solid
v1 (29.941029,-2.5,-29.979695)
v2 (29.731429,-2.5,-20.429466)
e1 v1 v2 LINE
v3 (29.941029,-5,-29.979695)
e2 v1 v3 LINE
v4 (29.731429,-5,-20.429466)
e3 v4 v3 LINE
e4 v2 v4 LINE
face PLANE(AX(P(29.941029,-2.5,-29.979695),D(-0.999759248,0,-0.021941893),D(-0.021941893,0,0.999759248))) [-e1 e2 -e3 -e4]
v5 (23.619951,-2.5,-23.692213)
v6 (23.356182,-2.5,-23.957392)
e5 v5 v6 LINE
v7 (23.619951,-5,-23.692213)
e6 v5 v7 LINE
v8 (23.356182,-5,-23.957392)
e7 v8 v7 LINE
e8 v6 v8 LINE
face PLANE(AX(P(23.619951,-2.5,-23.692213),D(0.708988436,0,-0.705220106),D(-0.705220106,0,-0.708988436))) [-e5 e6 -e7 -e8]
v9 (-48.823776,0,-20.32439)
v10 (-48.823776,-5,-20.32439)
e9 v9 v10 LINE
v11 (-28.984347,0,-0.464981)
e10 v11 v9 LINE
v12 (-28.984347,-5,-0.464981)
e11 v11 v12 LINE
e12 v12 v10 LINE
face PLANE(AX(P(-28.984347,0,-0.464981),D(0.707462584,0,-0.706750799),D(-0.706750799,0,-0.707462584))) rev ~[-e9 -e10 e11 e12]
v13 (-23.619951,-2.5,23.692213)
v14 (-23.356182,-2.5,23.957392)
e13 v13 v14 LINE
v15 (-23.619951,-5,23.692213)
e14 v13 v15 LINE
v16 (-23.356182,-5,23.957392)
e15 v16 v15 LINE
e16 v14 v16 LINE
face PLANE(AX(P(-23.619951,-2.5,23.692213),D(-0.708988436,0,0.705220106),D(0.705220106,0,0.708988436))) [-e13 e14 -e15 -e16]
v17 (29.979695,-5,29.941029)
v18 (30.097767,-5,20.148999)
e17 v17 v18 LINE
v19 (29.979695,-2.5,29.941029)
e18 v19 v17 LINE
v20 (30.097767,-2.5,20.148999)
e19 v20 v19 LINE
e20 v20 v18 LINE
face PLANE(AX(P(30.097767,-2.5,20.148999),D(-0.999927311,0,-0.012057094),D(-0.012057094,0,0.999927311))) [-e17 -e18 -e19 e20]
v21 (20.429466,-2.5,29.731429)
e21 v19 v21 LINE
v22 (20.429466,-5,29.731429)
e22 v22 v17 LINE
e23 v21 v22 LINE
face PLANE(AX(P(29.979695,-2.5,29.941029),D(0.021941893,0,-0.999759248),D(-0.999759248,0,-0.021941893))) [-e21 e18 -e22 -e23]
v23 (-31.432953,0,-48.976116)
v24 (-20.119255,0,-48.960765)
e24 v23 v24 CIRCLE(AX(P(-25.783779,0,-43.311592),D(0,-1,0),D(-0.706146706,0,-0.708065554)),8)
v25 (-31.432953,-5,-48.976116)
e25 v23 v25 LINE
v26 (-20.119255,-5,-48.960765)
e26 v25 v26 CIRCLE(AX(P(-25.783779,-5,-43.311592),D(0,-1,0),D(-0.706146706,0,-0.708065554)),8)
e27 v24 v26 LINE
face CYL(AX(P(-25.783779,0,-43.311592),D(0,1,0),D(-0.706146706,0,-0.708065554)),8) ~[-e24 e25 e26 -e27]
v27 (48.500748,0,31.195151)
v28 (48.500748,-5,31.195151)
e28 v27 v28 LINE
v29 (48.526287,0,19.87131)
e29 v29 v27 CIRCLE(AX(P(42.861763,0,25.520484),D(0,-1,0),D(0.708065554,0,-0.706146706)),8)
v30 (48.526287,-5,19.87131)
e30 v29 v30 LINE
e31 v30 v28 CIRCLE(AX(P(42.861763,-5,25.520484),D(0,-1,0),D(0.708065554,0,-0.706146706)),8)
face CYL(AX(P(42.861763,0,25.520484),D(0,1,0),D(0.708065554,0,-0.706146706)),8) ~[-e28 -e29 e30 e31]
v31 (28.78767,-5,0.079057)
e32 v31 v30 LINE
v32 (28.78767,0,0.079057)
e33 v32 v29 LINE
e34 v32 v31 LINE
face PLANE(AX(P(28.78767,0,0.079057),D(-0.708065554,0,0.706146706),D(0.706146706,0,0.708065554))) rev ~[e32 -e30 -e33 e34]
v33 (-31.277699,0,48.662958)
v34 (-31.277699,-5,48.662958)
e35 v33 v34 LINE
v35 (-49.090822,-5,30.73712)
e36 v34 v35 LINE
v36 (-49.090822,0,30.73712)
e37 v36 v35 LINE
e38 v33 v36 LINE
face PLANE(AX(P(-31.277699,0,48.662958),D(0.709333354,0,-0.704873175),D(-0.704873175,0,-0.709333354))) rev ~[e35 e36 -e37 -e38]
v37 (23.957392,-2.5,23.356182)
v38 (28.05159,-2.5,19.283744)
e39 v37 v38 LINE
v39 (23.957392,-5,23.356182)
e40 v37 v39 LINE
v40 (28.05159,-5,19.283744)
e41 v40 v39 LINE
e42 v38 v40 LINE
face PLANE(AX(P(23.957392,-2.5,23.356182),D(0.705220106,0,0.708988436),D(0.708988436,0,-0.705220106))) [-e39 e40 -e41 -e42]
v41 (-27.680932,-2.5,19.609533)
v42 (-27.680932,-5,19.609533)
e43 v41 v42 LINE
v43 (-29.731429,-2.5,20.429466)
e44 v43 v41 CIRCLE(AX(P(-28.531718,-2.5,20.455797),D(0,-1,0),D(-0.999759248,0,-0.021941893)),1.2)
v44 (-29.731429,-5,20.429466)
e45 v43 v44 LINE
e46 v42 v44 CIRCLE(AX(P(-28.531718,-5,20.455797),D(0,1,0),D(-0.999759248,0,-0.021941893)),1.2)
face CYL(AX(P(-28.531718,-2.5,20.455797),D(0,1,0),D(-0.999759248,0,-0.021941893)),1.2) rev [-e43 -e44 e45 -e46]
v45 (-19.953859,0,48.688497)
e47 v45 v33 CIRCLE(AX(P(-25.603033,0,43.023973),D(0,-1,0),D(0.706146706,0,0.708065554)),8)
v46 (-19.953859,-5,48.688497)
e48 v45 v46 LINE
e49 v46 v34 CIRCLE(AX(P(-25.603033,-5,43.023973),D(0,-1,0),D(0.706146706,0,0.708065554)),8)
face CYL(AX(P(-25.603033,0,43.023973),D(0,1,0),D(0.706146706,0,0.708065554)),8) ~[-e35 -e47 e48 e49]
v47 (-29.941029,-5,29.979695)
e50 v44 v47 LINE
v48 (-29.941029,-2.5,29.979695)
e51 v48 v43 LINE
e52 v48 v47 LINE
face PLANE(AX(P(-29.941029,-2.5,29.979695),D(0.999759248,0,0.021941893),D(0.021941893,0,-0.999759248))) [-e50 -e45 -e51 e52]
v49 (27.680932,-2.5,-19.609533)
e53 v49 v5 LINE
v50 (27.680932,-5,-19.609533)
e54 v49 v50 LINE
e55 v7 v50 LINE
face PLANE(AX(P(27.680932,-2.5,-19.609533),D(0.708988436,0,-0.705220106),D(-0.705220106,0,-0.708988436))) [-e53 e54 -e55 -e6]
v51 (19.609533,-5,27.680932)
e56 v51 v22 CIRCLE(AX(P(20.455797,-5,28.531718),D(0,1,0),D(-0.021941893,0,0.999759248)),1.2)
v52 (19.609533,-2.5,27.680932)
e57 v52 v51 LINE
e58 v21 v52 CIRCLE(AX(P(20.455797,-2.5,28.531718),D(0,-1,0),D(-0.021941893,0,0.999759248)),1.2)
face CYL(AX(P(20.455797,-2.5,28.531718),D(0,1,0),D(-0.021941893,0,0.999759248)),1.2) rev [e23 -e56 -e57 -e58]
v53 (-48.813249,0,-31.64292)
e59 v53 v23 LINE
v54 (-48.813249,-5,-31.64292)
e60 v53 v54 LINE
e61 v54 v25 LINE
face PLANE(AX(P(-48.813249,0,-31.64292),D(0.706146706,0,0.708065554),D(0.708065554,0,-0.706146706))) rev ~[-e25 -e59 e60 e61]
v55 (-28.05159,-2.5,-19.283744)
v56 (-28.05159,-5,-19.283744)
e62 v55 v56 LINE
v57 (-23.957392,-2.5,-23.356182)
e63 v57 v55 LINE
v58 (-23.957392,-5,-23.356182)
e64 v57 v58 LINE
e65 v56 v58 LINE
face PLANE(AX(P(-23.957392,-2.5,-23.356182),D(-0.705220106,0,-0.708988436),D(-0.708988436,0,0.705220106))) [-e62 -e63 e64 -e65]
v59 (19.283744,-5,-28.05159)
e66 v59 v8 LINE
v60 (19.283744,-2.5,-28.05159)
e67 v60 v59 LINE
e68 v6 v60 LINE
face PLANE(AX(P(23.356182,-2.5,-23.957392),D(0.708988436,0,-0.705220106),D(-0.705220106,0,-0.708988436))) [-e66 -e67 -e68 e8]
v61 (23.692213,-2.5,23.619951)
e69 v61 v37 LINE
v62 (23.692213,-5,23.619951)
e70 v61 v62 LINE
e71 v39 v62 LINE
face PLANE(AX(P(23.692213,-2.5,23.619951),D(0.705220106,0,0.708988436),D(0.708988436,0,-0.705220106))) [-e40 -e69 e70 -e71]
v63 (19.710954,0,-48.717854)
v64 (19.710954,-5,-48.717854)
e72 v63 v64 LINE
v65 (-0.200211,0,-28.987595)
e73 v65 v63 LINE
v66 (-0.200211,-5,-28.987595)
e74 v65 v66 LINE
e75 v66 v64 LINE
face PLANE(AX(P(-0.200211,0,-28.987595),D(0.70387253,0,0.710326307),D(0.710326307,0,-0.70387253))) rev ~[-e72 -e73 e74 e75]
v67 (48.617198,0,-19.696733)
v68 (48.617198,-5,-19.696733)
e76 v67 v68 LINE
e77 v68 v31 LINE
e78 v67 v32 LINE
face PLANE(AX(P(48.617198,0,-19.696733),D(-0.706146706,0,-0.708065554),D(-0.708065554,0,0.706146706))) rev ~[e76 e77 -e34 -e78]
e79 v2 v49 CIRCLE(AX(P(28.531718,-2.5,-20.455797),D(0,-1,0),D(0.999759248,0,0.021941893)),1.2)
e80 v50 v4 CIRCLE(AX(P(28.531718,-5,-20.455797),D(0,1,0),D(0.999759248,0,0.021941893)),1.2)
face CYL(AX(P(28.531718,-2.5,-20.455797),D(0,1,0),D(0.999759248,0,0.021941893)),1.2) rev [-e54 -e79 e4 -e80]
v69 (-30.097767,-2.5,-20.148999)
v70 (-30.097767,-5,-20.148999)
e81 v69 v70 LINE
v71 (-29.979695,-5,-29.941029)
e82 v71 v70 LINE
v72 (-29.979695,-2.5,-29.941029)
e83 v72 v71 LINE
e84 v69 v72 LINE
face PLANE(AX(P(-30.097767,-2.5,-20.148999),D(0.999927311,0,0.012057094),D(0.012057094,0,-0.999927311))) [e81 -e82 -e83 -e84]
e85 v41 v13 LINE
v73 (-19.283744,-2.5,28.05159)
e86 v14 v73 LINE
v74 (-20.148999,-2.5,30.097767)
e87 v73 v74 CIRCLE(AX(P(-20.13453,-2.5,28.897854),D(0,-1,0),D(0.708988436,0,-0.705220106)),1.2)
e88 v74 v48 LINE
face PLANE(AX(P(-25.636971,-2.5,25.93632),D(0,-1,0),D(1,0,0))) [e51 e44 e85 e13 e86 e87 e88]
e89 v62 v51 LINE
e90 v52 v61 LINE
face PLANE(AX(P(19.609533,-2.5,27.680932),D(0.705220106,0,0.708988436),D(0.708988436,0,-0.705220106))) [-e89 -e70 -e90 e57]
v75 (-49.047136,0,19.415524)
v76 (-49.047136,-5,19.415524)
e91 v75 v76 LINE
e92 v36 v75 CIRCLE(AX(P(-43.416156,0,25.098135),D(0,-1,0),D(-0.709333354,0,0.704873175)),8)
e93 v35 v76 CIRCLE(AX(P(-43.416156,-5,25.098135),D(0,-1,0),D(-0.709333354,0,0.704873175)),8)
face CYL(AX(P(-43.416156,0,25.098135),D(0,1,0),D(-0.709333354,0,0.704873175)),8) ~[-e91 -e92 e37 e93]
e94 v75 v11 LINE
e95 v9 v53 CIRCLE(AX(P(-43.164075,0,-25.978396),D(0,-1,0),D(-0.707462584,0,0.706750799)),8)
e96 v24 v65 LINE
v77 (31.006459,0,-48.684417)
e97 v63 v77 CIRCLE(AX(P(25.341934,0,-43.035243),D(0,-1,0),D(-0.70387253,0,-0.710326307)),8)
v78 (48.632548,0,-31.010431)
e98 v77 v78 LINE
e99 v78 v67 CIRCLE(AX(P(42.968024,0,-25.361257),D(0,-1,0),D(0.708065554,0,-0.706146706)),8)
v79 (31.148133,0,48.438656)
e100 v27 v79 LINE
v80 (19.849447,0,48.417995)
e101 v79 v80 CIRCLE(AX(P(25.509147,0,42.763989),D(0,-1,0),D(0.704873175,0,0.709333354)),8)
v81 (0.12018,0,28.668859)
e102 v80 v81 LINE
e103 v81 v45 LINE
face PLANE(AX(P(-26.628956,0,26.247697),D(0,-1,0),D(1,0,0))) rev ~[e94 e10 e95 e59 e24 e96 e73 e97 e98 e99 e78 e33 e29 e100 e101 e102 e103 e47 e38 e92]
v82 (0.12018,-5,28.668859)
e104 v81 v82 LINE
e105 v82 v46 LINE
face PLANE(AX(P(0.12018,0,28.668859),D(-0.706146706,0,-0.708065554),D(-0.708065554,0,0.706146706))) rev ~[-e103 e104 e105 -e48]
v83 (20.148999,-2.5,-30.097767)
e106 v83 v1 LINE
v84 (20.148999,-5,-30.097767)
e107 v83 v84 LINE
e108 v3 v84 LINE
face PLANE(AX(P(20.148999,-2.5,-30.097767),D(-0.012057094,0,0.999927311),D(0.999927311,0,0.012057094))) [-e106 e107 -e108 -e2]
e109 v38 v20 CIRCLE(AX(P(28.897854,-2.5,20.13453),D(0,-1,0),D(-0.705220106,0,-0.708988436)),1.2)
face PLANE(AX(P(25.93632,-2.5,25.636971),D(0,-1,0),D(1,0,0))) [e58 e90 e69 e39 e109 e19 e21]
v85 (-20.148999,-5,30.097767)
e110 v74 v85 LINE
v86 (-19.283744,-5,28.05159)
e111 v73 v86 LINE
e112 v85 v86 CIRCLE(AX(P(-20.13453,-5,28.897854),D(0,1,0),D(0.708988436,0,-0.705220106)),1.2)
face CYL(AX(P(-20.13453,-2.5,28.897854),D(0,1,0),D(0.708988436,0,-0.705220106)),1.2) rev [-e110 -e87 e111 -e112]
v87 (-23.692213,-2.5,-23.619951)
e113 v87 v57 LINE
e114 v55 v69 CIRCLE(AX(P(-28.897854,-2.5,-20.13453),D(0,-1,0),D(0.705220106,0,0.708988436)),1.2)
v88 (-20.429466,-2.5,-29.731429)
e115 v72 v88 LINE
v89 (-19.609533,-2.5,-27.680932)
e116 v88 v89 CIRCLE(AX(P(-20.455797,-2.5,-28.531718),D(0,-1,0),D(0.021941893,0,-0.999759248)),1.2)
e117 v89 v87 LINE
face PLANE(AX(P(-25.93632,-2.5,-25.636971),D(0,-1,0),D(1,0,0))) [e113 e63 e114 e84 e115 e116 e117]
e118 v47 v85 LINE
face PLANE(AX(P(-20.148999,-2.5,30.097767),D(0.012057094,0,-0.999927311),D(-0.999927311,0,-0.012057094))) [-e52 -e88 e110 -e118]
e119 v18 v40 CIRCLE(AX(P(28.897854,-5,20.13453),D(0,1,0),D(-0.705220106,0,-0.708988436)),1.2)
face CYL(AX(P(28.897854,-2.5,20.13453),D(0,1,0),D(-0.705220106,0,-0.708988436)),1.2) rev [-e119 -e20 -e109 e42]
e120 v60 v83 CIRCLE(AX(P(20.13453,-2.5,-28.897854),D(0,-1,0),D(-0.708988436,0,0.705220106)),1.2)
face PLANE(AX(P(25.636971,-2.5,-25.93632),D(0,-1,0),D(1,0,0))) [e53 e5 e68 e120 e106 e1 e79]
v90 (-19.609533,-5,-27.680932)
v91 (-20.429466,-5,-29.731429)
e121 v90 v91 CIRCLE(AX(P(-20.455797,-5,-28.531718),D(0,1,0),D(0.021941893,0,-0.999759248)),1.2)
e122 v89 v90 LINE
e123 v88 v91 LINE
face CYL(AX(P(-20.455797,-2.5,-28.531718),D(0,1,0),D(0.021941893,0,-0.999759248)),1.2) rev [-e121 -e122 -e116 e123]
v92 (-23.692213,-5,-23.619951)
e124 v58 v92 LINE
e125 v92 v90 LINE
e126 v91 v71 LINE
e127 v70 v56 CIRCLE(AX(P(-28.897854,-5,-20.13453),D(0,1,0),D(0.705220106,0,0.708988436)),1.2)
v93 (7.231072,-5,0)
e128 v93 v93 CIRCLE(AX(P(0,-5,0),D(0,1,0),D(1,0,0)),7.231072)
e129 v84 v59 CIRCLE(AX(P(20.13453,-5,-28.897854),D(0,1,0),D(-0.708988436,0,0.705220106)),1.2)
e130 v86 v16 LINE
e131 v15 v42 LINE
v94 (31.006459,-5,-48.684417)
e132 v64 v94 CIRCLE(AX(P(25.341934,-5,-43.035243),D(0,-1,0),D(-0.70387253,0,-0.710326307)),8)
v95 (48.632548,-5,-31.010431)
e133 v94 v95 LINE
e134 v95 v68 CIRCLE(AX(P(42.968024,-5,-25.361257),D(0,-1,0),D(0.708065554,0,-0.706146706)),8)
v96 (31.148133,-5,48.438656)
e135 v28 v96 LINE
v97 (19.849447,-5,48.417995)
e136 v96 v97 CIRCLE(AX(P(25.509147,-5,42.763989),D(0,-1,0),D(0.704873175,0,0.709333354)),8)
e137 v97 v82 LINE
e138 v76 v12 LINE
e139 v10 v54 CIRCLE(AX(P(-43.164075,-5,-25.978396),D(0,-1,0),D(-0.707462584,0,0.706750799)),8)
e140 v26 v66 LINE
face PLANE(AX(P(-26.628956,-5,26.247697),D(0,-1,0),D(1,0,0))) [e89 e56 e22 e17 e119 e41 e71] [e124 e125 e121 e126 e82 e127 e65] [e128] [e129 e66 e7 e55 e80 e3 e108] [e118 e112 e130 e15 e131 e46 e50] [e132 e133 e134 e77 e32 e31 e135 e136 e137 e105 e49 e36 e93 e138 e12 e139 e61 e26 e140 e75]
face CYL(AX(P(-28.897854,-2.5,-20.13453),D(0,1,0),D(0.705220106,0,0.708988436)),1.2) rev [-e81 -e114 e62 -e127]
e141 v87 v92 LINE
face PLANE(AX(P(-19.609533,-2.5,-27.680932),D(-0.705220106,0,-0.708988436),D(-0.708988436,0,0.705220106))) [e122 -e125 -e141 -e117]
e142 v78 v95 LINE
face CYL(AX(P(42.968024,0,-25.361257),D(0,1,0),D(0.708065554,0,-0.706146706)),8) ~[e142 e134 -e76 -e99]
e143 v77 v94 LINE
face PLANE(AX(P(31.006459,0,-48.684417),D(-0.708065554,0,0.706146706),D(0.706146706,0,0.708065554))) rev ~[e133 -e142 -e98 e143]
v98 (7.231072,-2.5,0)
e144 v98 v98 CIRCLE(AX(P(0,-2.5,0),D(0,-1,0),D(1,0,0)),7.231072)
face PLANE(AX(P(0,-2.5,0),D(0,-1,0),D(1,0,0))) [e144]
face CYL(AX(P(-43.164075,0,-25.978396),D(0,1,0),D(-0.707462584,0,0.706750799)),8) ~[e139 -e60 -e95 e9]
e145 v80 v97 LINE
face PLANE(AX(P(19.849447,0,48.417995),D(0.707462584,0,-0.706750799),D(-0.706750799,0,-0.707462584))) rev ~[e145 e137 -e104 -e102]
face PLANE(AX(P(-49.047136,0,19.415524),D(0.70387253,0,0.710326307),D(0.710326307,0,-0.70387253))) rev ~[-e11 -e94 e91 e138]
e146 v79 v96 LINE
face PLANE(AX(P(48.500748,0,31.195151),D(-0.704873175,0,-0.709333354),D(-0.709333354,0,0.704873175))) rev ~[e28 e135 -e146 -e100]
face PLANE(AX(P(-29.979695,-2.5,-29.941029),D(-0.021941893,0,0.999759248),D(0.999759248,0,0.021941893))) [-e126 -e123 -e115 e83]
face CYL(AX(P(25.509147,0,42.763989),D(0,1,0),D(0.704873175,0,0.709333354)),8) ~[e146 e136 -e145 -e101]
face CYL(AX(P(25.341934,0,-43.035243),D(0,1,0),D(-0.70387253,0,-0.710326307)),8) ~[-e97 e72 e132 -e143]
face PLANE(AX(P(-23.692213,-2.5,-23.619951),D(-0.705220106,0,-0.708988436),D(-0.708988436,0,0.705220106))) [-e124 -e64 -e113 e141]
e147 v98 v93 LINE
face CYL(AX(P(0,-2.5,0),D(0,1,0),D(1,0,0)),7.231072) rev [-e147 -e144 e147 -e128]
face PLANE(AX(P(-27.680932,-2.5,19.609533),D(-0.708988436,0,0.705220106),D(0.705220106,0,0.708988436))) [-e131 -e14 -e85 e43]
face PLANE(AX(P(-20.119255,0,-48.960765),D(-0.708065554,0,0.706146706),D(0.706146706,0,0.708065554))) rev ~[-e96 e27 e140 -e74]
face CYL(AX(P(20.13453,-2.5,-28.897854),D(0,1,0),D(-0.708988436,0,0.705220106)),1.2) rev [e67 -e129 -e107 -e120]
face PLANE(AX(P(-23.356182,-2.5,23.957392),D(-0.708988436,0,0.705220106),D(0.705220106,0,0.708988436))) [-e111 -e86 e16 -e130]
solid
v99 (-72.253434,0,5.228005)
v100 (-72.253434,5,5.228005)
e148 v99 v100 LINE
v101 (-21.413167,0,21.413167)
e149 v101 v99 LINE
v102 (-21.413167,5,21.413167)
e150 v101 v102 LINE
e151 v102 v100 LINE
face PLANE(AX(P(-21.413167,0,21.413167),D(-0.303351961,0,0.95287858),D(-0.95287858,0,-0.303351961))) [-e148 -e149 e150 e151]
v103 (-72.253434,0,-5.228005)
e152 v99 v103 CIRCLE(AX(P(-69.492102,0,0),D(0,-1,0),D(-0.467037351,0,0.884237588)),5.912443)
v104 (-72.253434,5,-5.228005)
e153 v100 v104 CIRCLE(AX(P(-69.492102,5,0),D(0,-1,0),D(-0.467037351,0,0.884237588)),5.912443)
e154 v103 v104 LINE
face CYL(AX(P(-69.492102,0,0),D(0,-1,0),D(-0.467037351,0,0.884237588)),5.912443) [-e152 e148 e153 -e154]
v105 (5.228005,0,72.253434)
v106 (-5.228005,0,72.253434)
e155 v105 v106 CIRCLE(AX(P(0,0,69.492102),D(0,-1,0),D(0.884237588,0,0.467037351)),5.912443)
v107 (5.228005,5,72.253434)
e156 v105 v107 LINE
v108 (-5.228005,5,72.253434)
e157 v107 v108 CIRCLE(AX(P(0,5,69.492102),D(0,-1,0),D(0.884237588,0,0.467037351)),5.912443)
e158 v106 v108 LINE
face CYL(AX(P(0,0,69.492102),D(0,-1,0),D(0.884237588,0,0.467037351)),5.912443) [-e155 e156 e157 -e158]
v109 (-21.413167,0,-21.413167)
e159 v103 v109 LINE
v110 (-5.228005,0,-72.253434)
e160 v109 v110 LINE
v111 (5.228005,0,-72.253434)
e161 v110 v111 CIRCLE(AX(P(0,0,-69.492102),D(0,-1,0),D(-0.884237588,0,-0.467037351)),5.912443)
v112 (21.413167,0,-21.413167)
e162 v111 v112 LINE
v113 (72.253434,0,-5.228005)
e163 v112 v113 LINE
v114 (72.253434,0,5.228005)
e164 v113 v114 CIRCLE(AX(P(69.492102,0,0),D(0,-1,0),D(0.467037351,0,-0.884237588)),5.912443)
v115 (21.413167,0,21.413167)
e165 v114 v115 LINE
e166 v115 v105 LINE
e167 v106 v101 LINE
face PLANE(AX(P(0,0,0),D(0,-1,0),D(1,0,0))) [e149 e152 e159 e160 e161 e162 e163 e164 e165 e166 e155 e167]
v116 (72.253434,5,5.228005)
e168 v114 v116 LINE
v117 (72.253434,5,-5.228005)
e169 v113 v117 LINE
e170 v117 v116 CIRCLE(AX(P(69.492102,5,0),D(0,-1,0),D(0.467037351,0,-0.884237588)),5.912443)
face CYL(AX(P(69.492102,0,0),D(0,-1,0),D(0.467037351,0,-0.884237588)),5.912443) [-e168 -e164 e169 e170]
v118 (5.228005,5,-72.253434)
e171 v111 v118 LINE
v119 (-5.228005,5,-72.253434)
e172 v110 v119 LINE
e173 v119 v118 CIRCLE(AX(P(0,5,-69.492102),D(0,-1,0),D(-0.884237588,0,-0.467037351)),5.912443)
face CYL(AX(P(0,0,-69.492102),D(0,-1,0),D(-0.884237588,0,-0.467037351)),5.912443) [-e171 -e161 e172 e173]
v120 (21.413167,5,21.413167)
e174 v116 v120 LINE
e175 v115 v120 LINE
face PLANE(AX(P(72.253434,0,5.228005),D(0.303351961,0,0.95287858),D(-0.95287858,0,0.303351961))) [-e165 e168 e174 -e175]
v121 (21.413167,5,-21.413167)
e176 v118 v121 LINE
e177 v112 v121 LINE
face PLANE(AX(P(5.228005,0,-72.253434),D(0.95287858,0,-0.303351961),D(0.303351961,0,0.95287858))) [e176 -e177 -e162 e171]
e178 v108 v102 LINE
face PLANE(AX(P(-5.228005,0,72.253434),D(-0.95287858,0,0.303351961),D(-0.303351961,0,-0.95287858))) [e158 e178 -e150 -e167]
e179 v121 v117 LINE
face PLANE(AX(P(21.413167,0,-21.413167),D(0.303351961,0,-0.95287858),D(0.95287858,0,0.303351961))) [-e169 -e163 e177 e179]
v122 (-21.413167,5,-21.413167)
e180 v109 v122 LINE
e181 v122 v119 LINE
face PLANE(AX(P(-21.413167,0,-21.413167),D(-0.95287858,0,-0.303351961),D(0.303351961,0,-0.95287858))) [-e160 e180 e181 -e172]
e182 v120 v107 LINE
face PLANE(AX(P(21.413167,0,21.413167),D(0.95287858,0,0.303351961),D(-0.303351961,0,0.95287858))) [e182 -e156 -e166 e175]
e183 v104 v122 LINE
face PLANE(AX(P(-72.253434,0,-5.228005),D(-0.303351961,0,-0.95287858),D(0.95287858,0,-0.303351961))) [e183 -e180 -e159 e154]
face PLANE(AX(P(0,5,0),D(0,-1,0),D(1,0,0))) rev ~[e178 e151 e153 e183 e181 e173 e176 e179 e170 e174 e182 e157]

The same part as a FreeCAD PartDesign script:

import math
import FreeCAD as App
import Part
import Sketcher
from FreeCAD import Vector

doc = App.newDocument("Part")
params = doc.addObject("Spreadsheet::Sheet", "Params")
for row, (alias, value) in enumerate([
    ("pad1_length", "5 mm"),
    ("sketch2_radius", "8 mm"),
    ("sketch2_radius2", "8 mm"),
    ("sketch2_radius3", "8 mm"),
    ("sketch2_radius4", "8 mm"),
    ("sketch2_radius5", "8 mm"),
    ("pad2_length", "5 mm"),
    ("sketch3_radius", "1.2 mm"),
    ("pocket1_length", "8.5 mm"),
    ("pocket2_length", "8.5 mm"),
], start=1):
    params.set(f"A{row}", alias)
    params.set(f"B{row}", "=" + value)
    params.setAlias(f"B{row}", alias)

body = doc.addObject("PartDesign::Body", "Body")

# Sketch on XZ plane
sketch1 = body.newObject("Sketcher::SketchObject", "Sketch")
sketch1.AttachmentSupport = (doc.getObject("XZ_Plane"), [""])
sketch1.MapMode = "FlatFace"
sketch1.addGeometry(Part.LineSegment(Vector(21.413167, 21.413167, 0), Vector(5.228005, 72.253434, 0)), False)
sketch1.addGeometry(Part.ArcOfCircle(Part.Circle(Vector(0, 69.492102, 0), Vector(0, 0, 1), 5.912443), math.radians(27.842156), math.radians(152.157844)), False)
sketch1.addGeometry(Part.LineSegment(Vector(-5.228005, 72.253434, 0), Vector(-21.413167, 21.413167, 0)), False)
sketch1.addGeometry(Part.LineSegment(Vector(-21.413167, 21.413167, 0), Vector(-72.253434, 5.228005, 0)), False)
sketch1.addGeometry(Part.ArcOfCircle(Part.Circle(Vector(-69.492102, 0, 0), Vector(0, 0, 1), 5.912443), math.radians(117.842156), math.radians(242.157844)), False)
sketch1.addGeometry(Part.LineSegment(Vector(-72.253434, -5.228005, 0), Vector(-21.413167, -21.413167, 0)), False)
sketch1.addGeometry(Part.LineSegment(Vector(-21.413167, -21.413167, 0), Vector(-5.228005, -72.253434, 0)), False)
sketch1.addGeometry(Part.ArcOfCircle(Part.Circle(Vector(0, -69.492102, 0), Vector(0, 0, 1), 5.912443), math.radians(-152.157844), math.radians(-27.842156)), False)
sketch1.addGeometry(Part.LineSegment(Vector(5.228005, -72.253434, 0), Vector(21.413167, -21.413167, 0)), False)
sketch1.addGeometry(Part.LineSegment(Vector(21.413167, -21.413167, 0), Vector(72.253434, -5.228005, 0)), False)
sketch1.addGeometry(Part.ArcOfCircle(Part.Circle(Vector(69.492102, 0, 0), Vector(0, 0, 1), 5.912443), math.radians(-62.157844), math.radians(62.157844)), False)
sketch1.addGeometry(Part.LineSegment(Vector(72.253434, 5.228005, 0), Vector(21.413167, 21.413167, 0)), False)
sketch1.addConstraint(Sketcher.Constraint("Coincident", 0, 2, 1, 1))
sketch1.addConstraint(Sketcher.Constraint("Coincident", 1, 2, 2, 1))
sketch1.addConstraint(Sketcher.Constraint("Coincident", 2, 2, 3, 1))
sketch1.addConstraint(Sketcher.Constraint("Coincident", 3, 2, 4, 1))
sketch1.addConstraint(Sketcher.Constraint("Coincident", 4, 2, 5, 1))
sketch1.addConstraint(Sketcher.Constraint("Coincident", 5, 2, 6, 1))
sketch1.addConstraint(Sketcher.Constraint("Coincident", 6, 2, 7, 1))
sketch1.addConstraint(Sketcher.Constraint("Coincident", 7, 2, 8, 1))
sketch1.addConstraint(Sketcher.Constraint("Coincident", 8, 2, 9, 1))
sketch1.addConstraint(Sketcher.Constraint("Coincident", 9, 2, 10, 1))
sketch1.addConstraint(Sketcher.Constraint("Coincident", 10, 2, 11, 1))
sketch1.addConstraint(Sketcher.Constraint("Coincident", 11, 2, 0, 1))
sketch1.addConstraint(Sketcher.Constraint("Equal", 1, 4))
sketch1.addConstraint(Sketcher.Constraint("Equal", 4, 7))
sketch1.addConstraint(Sketcher.Constraint("Equal", 7, 10))
sketch1.addConstraint(Sketcher.Constraint("Symmetric", 1, 3, 7, 3, -1, 1))
sketch1.addConstraint(Sketcher.Constraint("Symmetric", 4, 3, 10, 3, -1, 1))
sketch1.addConstraint(Sketcher.Constraint("Symmetric", 2, 2, 8, 2, -1, 1))
sketch1.addConstraint(Sketcher.Constraint("Symmetric", 5, 2, 11, 2, -1, 1))
sketch1.addConstraint(Sketcher.Constraint("Symmetric", 0, 2, 1, 2, -2))
sketch1.addConstraint(Sketcher.Constraint("Symmetric", 5, 2, 8, 2, -2))
sketch1.addConstraint(Sketcher.Constraint("Symmetric", 4, 2, 9, 2, -2))
sketch1.addConstraint(Sketcher.Constraint("Perpendicular", 0, 3))
sketch1.addConstraint(Sketcher.Constraint("Perpendicular", 2, 5))
sketch1.addConstraint(Sketcher.Constraint("Perpendicular", 3, 6))
sketch1.addConstraint(Sketcher.Constraint("Perpendicular", 5, 8))
sketch1.addConstraint(Sketcher.Constraint("Perpendicular", 8, 11))
sketch1.addConstraint(Sketcher.Constraint("Equal", 2, 3))
sketch1.addConstraint(Sketcher.Constraint("Radius", 1, 5.912443))
sketch1.addConstraint(Sketcher.Constraint("Distance", 0, 53.354402))
sketch1.addConstraint(Sketcher.Constraint("DistanceY", -1, 1, 1, 3, 69.492102))
sketch1.addConstraint(Sketcher.Constraint("DistanceX", 4, 3, -1, 1, 69.492102))
sketch1.addConstraint(Sketcher.Constraint("DistanceY", 6, 2, 2, 2, 93.666601))
pad1 = body.newObject("PartDesign::Pad", "Pad")
pad1.Profile = sketch1
pad1.setExpression("Length", "Params.pad1_length")
pad1.Reversed = True
body2 = doc.addObject("PartDesign::Body", "Body001")

# Sketch on XZ plane
sketch2 = body2.newObject("Sketcher::SketchObject", "Sketch001")
sketch2.AttachmentSupport = (doc.getObject("XZ_Plane001"), [""])
sketch2.MapMode = "FlatFace"
sketch2.addGeometry(Part.LineSegment(Vector(-31.277699, 48.662958, 0), Vector(-49.090822, 30.73712, 0)), False)
sketch2.addGeometry(Part.ArcOfCircle(Part.Circle(Vector(-43.416156, 25.098135, 0), Vector(0, 0, 1), 8), math.radians(135.180701), math.radians(225.261471)), False)
sketch2.addGeometry(Part.LineSegment(Vector(-49.047136, 19.415524, 0), Vector(-28.984347, -0.464981, 0)), False)
sketch2.addGeometry(Part.LineSegment(Vector(-28.984347, -0.464981, 0), Vector(-48.823776, -20.32439, 0)), False)
sketch2.addGeometry(Part.ArcOfCircle(Part.Circle(Vector(-43.164075, -25.978396, 0), Vector(0, 0, 1), 8), math.radians(135.028837), math.radians(225.077741)), False)
sketch2.addGeometry(Part.LineSegment(Vector(-48.813249, -31.64292, 0), Vector(-31.432953, -48.976116, 0)), False)
sketch2.addGeometry(Part.ArcOfCircle(Part.Circle(Vector(-25.783779, -43.311592, 0), Vector(0, 0, 1), 8), math.radians(-134.922259), math.radians(-44.922259)), False)
sketch2.addGeometry(Part.LineSegment(Vector(-20.119255, -48.960765, 0), Vector(-0.200211, -28.987595, 0)), False)
sketch2.addGeometry(Part.LineSegment(Vector(-0.200211, -28.987595, 0), Vector(19.710954, -48.717854, 0)), False)
sketch2.addGeometry(Part.ArcOfCircle(Part.Circle(Vector(25.341934, -43.035243, 0), Vector(0, 0, 1), 8), math.radians(-134.738529), math.radians(-44.922259)), False)
sketch2.addGeometry(Part.LineSegment(Vector(31.006459, -48.684417, 0), Vector(48.632548, -31.010431, 0)), False)
sketch2.addGeometry(Part.ArcOfCircle(Part.Circle(Vector(42.968024, -25.361257, 0), Vector(0, 0, 1), 8), math.radians(-44.922259), math.radians(45.077741)), False)
sketch2.addGeometry(Part.LineSegment(Vector(48.617198, -19.696733, 0), Vector(28.78767, 0.079057, 0)), False)
sketch2.addGeometry(Part.LineSegment(Vector(28.78767, 0.079057, 0), Vector(48.526287, 19.87131, 0)), False)
sketch2.addGeometry(Part.ArcOfCircle(Part.Circle(Vector(42.861763, 25.520484, 0), Vector(0, 0, 1), 8), math.radians(-44.922259), math.radians(45.180701)), False)
sketch2.addGeometry(Part.LineSegment(Vector(48.500748, 31.195151, 0), Vector(31.148133, 48.438656, 0)), False)
sketch2.addGeometry(Part.ArcOfCircle(Part.Circle(Vector(25.509147, 42.763989, 0), Vector(0, 0, 1), 8), math.radians(45.180701), math.radians(135.028837)), False)
sketch2.addGeometry(Part.LineSegment(Vector(19.849447, 48.417995, 0), Vector(0.12018, 28.668859, 0)), False)
sketch2.addGeometry(Part.LineSegment(Vector(0.12018, 28.668859, 0), Vector(-19.953859, 48.688497, 0)), False)
sketch2.addGeometry(Part.ArcOfCircle(Part.Circle(Vector(-25.603033, 43.023973, 0), Vector(0, 0, 1), 8), math.radians(45.077741), math.radians(135.180701)), False)
sketch2.addConstraint(Sketcher.Constraint("Coincident", 0, 2, 1, 1))
sketch2.addConstraint(Sketcher.Constraint("Coincident", 1, 2, 2, 1))
sketch2.addConstraint(Sketcher.Constraint("Coincident", 2, 2, 3, 1))
sketch2.addConstraint(Sketcher.Constraint("Coincident", 3, 2, 4, 1))
sketch2.addConstraint(Sketcher.Constraint("Coincident", 4, 2, 5, 1))
sketch2.addConstraint(Sketcher.Constraint("Coincident", 5, 2, 6, 1))
sketch2.addConstraint(Sketcher.Constraint("Coincident", 6, 2, 7, 1))
sketch2.addConstraint(Sketcher.Constraint("Coincident", 7, 2, 8, 1))
sketch2.addConstraint(Sketcher.Constraint("Coincident", 8, 2, 9, 1))
sketch2.addConstraint(Sketcher.Constraint("Coincident", 9, 2, 10, 1))
sketch2.addConstraint(Sketcher.Constraint("Coincident", 10, 2, 11, 1))
sketch2.addConstraint(Sketcher.Constraint("Coincident", 11, 2, 12, 1))
sketch2.addConstraint(Sketcher.Constraint("Coincident", 12, 2, 13, 1))
sketch2.addConstraint(Sketcher.Constraint("Coincident", 13, 2, 14, 1))
sketch2.addConstraint(Sketcher.Constraint("Coincident", 14, 2, 15, 1))
sketch2.addConstraint(Sketcher.Constraint("Coincident", 15, 2, 16, 1))
sketch2.addConstraint(Sketcher.Constraint("Coincident", 16, 2, 17, 1))
sketch2.addConstraint(Sketcher.Constraint("Coincident", 17, 2, 18, 1))
sketch2.addConstraint(Sketcher.Constraint("Coincident", 18, 2, 19, 1))
sketch2.addConstraint(Sketcher.Constraint("Coincident", 19, 2, 0, 1))
sketch2.addConstraint(Sketcher.Constraint("Radius", 1, 8.0))
sketch2.addConstraint(Sketcher.Constraint("Radius", 4, 8.0))
sketch2.addConstraint(Sketcher.Constraint("Radius", 6, 8.0))
sketch2.addConstraint(Sketcher.Constraint("Radius", 9, 8.0))
sketch2.addConstraint(Sketcher.Constraint("Radius", 11, 8.0))
sketch2.addConstraint(Sketcher.Constraint("Radius", 14, 8.0))
sketch2.addConstraint(Sketcher.Constraint("Radius", 16, 8.0))
sketch2.addConstraint(Sketcher.Constraint("Radius", 19, 8.0))
sketch2.addConstraint(Sketcher.Constraint("DistanceX", 19, 2, -1, 1, 31.277699))
sketch2.addConstraint(Sketcher.Constraint("DistanceX", 4, 3, 11, 3, 86.132099))
sketch2.addConstraint(Sketcher.Constraint("DistanceY", 2, 2, 0, 2, 31.202101))
sketch2.addConstraint(Sketcher.Constraint("DistanceX", 3, 2, 4, 3, 5.659701))
sketch2.addConstraint(Sketcher.Constraint("DistanceX", 4, 2, 2, 2, 19.828901))
sketch2.addConstraint(Sketcher.Constraint("DistanceX", 5, 2, 6, 2, 11.313698))
sketch2.addConstraint(Sketcher.Constraint("DistanceY", 10, 2, 11, 2, 11.313698))
sketch2.addConstraint(Sketcher.Constraint("DistanceX", 16, 3, 14, 2, 22.991601))
sketch2.addConstraint(Sketcher.Constraint("DistanceY", 12, 2, 15, 2, 48.359599))
sketch2.addConstraint(Sketcher.Constraint("DistanceX", 16, 2, 16, 3, 5.659701))
sketch2.addConstraint(Sketcher.Constraint("DistanceY", 12, 2, 17, 2, 28.589802))
sketch2.addConstraint(Sketcher.Constraint("Distance", 3, 28.071321))
sketch2.addConstraint(Sketcher.Constraint("Distance", 5, 24.546168))
sketch2.addConstraint(Sketcher.Constraint("Distance", 7, 28.208082))
sketch2.addConstraint(Sketcher.Constraint("Distance", 8, 28.031012))
sketch2.addConstraint(Sketcher.Constraint("Distance", 17, 27.91545))
sketch2.addConstraint(Sketcher.Constraint("DistanceX", 6, 3, -1, 1, 25.783779))
sketch2.addConstraint(Sketcher.Constraint("DistanceY", 6, 3, -1, 1, 43.311592))
sketch2.addConstraint(Sketcher.Constraint("DistanceY", -1, 1, 16, 3, 42.763989))
sketch2.addConstraint(Sketcher.Constraint("DistanceY", -1, 1, 0, 2, 30.73712))
sketch2.addConstraint(Sketcher.Constraint("DistanceY", 3, 2, -1, 1, 20.32439))
sketch2.addConstraint(Sketcher.Constraint("DistanceX", 4, 2, -1, 1, 48.813249))
sketch2.addConstraint(Sketcher.Constraint("DistanceX", 7, 2, -1, 1, 0.200211))
sketch2.addConstraint(Sketcher.Constraint("DistanceX", -1, 1, 9, 2, 31.006459))
sketch2.addConstraint(Sketcher.Constraint("DistanceX", -1, 1, 10, 2, 48.632548))
sketch2.addConstraint(Sketcher.Constraint("DistanceY", 10, 2, -1, 1, 31.010431))
sketch2.addConstraint(Sketcher.Constraint("DistanceX", -1, 1, 12, 2, 28.78767))
sketch2.addConstraint(Sketcher.Constraint("DistanceY", -1, 1, 13, 2, 19.87131))
sketch2.addConstraint(Sketcher.Constraint("DistanceX", -1, 1, 14, 2, 48.500748))
sketch2.addConstraint(Sketcher.Constraint("DistanceY", -1, 1, 14, 2, 31.195151))
sketch2.addConstraint(Sketcher.Constraint("DistanceX", -1, 1, 17, 2, 0.12018))
sketch2.addConstraint(Sketcher.Constraint("DistanceX", 18, 2, -1, 1, 19.953859))
sketch2.addConstraint(Sketcher.Constraint("DistanceY", -1, 1, 19, 2, 48.662958))
sketch2.addConstraint(Sketcher.Constraint("DistanceX", 1, 3, 4, 3, 0.25208))
sketch2.addConstraint(Sketcher.Constraint("DistanceY", 4, 3, 1, 3, 51.076531))
sketch2.addConstraint(Sketcher.Constraint("DistanceY", 6, 3, 9, 3, 0.276349))
sketch2.addConstraint(Sketcher.Constraint("DistanceX", 4, 3, 9, 3, 68.506009))
sketch2.addConstraint(Sketcher.Constraint("DistanceX", 14, 3, 11, 3, 0.106261))
sketch2.addConstraint(Sketcher.Constraint("DistanceX", 19, 3, 16, 3, 51.11218))
sketch2.addConstraint(Sketcher.Constraint("DistanceX", 1, 2, 1, 3, 5.63098))
sketch2.setExpression("Constraints[20]", "Params.sketch2_radius")
sketch2.setExpression("Constraints[21]", "Params.sketch2_radius2")
sketch2.setExpression("Constraints[22]", "Params.sketch2_radius3")
sketch2.setExpression("Constraints[23]", "Params.sketch2_radius4")
sketch2.setExpression("Constraints[24]", "Params.sketch2_radius5")
pad2 = body2.newObject("PartDesign::Pad", "Pad001")
pad2.Profile = sketch2
pad2.setExpression("Length", "Params.pad2_length")

# Sketch on XZ plane
sketch3 = body2.newObject("Sketcher::SketchObject", "Sketch002")
sketch3.AttachmentSupport = (doc.getObject("XZ_Plane001"), [""])
sketch3.MapMode = "FlatFace"
sketch3.AttachmentOffset = App.Placement(Vector(0, 0, 2.5), App.Rotation())
sketch3.addGeometry(Part.LineSegment(Vector(23.957392, 23.356182, 0), Vector(28.05159, 19.283744, 0)), False)
sketch3.addGeometry(Part.ArcOfCircle(Part.Circle(Vector(28.897854, 20.13453, 0), Vector(0, 0, 1), 1.2), math.radians(-134.847329), math.radians(0.690837)), False)
sketch3.addGeometry(Part.LineSegment(Vector(30.097767, 20.148999, 0), Vector(29.979695, 29.941029, 0)), False)
sketch3.addGeometry(Part.LineSegment(Vector(29.979695, 29.941029, 0), Vector(20.429466, 29.731429, 0)), False)
sketch3.addGeometry(Part.ArcOfCircle(Part.Circle(Vector(20.455797, 28.531718, 0), Vector(0, 0, 1), 1.2), math.radians(91.257279), math.radians(225.152671)), False)
sketch3.addGeometry(Part.LineSegment(Vector(19.609533, 27.680932, 0), Vector(23.692213, 23.619951, 0)), False)
sketch3.addGeometry(Part.LineSegment(Vector(23.692213, 23.619951, 0), Vector(23.957392, 23.356182, 0)), False)
sketch3.addGeometry(Part.LineSegment(Vector(-23.619951, 23.692213, 0), Vector(-23.356182, 23.957392, 0)), False)
sketch3.addGeometry(Part.LineSegment(Vector(-23.356182, 23.957392, 0), Vector(-19.283744, 28.05159, 0)), False)
sketch3.addGeometry(Part.ArcOfCircle(Part.Circle(Vector(-20.13453, 28.897854, 0), Vector(0, 0, 1), 1.2), math.radians(-44.847329), math.radians(90.690837)), False)
sketch3.addGeometry(Part.LineSegment(Vector(-20.148999, 30.097767, 0), Vector(-29.941029, 29.979695, 0)), False)
sketch3.addGeometry(Part.LineSegment(Vector(-29.941029, 29.979695, 0), Vector(-29.731429, 20.429466, 0)), False)
sketch3.addGeometry(Part.ArcOfCircle(Part.Circle(Vector(-28.531718, 20.455797, 0), Vector(0, 0, 1), 1.2), math.radians(-178.742721), math.radians(-44.847329)), False)
sketch3.addGeometry(Part.LineSegment(Vector(-27.680932, 19.609533, 0), Vector(-23.619951, 23.692213, 0)), False)
sketch3.addGeometry(Part.LineSegment(Vector(-23.692213, -23.619951, 0), Vector(-23.957392, -23.356182, 0)), False)
sketch3.addGeometry(Part.LineSegment(Vector(-23.957392, -23.356182, 0), Vector(-28.05159, -19.283744, 0)), False)
sketch3.addGeometry(Part.ArcOfCircle(Part.Circle(Vector(-28.897854, -20.13453, 0), Vector(0, 0, 1), 1.2), math.radians(45.152671), math.radians(180.690837)), False)
sketch3.addGeometry(Part.LineSegment(Vector(-30.097767, -20.148999, 0), Vector(-29.979695, -29.941029, 0)), False)
sketch3.addGeometry(Part.LineSegment(Vector(-29.979695, -29.941029, 0), Vector(-20.429466, -29.731429, 0)), False)
sketch3.addGeometry(Part.ArcOfCircle(Part.Circle(Vector(-20.455797, -28.531718, 0), Vector(0, 0, 1), 1.2), math.radians(-88.742721), math.radians(45.152671)), False)
sketch3.addGeometry(Part.LineSegment(Vector(-19.609533, -27.680932, 0), Vector(-23.692213, -23.619951, 0)), False)
sketch3.addGeometry(Part.LineSegment(Vector(23.619951, -23.692213, 0), Vector(23.356182, -23.957392, 0)), False)
sketch3.addGeometry(Part.LineSegment(Vector(23.356182, -23.957392, 0), Vector(19.283744, -28.05159, 0)), False)
sketch3.addGeometry(Part.ArcOfCircle(Part.Circle(Vector(20.13453, -28.897854, 0), Vector(0, 0, 1), 1.2), math.radians(135.152671), math.radians(270.690837)), False)
sketch3.addGeometry(Part.LineSegment(Vector(20.148999, -30.097767, 0), Vector(29.941029, -29.979695, 0)), False)
sketch3.addGeometry(Part.LineSegment(Vector(29.941029, -29.979695, 0), Vector(29.731429, -20.429466, 0)), False)
sketch3.addGeometry(Part.ArcOfCircle(Part.Circle(Vector(28.531718, -20.455797, 0), Vector(0, 0, 1), 1.2), math.radians(1.257279), math.radians(135.152671)), False)
sketch3.addGeometry(Part.LineSegment(Vector(27.680932, -19.609533, 0), Vector(23.619951, -23.692213, 0)), False)
sketch3.addConstraint(Sketcher.Constraint("Tangent", 0, 2, 1, 1))
sketch3.addConstraint(Sketcher.Constraint("Tangent", 1, 2, 2, 1))
sketch3.addConstraint(Sketcher.Constraint("Coincident", 2, 2, 3, 1))
sketch3.addConstraint(Sketcher.Constraint("Tangent", 3, 2, 4, 1))
sketch3.addConstraint(Sketcher.Constraint("Tangent", 4, 2, 5, 1))
sketch3.addConstraint(Sketcher.Constraint("Coincident", 5, 2, 6, 1))
sketch3.addConstraint(Sketcher.Constraint("Coincident", 6, 2, 0, 1))
sketch3.addConstraint(Sketcher.Constraint("Coincident", 7, 2, 8, 1))
sketch3.addConstraint(Sketcher.Constraint("Tangent", 8, 2, 9, 1))
sketch3.addConstraint(Sketcher.Constraint("Tangent", 9, 2, 10, 1))
sketch3.addConstraint(Sketcher.Constraint("Coincident", 10, 2, 11, 1))
sketch3.addConstraint(Sketcher.Constraint("Tangent", 11, 2, 12, 1))
sketch3.addConstraint(Sketcher.Constraint("Tangent", 12, 2, 13, 1))
sketch3.addConstraint(Sketcher.Constraint("Coincident", 13, 2, 7, 1))
sketch3.addConstraint(Sketcher.Constraint("Coincident", 14, 2, 15, 1))
sketch3.addConstraint(Sketcher.Constraint("Tangent", 15, 2, 16, 1))
sketch3.addConstraint(Sketcher.Constraint("Tangent", 16, 2, 17, 1))
sketch3.addConstraint(Sketcher.Constraint("Coincident", 17, 2, 18, 1))
sketch3.addConstraint(Sketcher.Constraint("Tangent", 18, 2, 19, 1))
sketch3.addConstraint(Sketcher.Constraint("Tangent", 19, 2, 20, 1))
sketch3.addConstraint(Sketcher.Constraint("Coincident", 20, 2, 14, 1))
sketch3.addConstraint(Sketcher.Constraint("Coincident", 21, 2, 22, 1))
sketch3.addConstraint(Sketcher.Constraint("Tangent", 22, 2, 23, 1))
sketch3.addConstraint(Sketcher.Constraint("Tangent", 23, 2, 24, 1))
sketch3.addConstraint(Sketcher.Constraint("Coincident", 24, 2, 25, 1))
sketch3.addConstraint(Sketcher.Constraint("Tangent", 25, 2, 26, 1))
sketch3.addConstraint(Sketcher.Constraint("Tangent", 26, 2, 27, 1))
sketch3.addConstraint(Sketcher.Constraint("Coincident", 27, 2, 21, 1))
sketch3.addConstraint(Sketcher.Constraint("Equal", 1, 4))
sketch3.addConstraint(Sketcher.Constraint("Equal", 4, 9))
sketch3.addConstraint(Sketcher.Constraint("Equal", 9, 12))
sketch3.addConstraint(Sketcher.Constraint("Equal", 12, 16))
sketch3.addConstraint(Sketcher.Constraint("Equal", 16, 19))
sketch3.addConstraint(Sketcher.Constraint("Equal", 19, 23))
sketch3.addConstraint(Sketcher.Constraint("Equal", 23, 26))
sketch3.addConstraint(Sketcher.Constraint("Symmetric", 1, 3, 16, 3, -1, 1))
sketch3.addConstraint(Sketcher.Constraint("Symmetric", 4, 3, 19, 3, -1, 1))
sketch3.addConstraint(Sketcher.Constraint("Symmetric", 9, 3, 23, 3, -1, 1))
sketch3.addConstraint(Sketcher.Constraint("Symmetric", 12, 3, 26, 3, -1, 1))
sketch3.addConstraint(Sketcher.Constraint("Symmetric", 6, 2, 14, 2, -1, 1))
sketch3.addConstraint(Sketcher.Constraint("Symmetric", 2, 2, 17, 2, -1, 1))
sketch3.addConstraint(Sketcher.Constraint("Symmetric", 5, 2, 20, 2, -1, 1))
sketch3.addConstraint(Sketcher.Constraint("Symmetric", 7, 2, 21, 2, -1, 1))
sketch3.addConstraint(Sketcher.Constraint("Symmetric", 10, 2, 24, 2, -1, 1))
sketch3.addConstraint(Sketcher.Constraint("Symmetric", 13, 2, 27, 2, -1, 1))
sketch3.addConstraint(Sketcher.Constraint("Parallel", 0, 5))
sketch3.addConstraint(Sketcher.Constraint("Parallel", 5, 6))
sketch3.addConstraint(Sketcher.Constraint("Perpendicular", 6, 7))
sketch3.addConstraint(Sketcher.Constraint("Parallel", 7, 8))
sketch3.addConstraint(Sketcher.Constraint("Perpendicular", 2, 10))
sketch3.addConstraint(Sketcher.Constraint("Perpendicular", 3, 11))
sketch3.addConstraint(Sketcher.Constraint("Parallel", 8, 13))
sketch3.addConstraint(Sketcher.Constraint("Equal", 6, 7))
sketch3.addConstraint(Sketcher.Constraint("Equal", 0, 8))
sketch3.addConstraint(Sketcher.Constraint("Equal", 2, 10))
sketch3.addConstraint(Sketcher.Constraint("Radius", 1, 1.2))
sketch3.addConstraint(Sketcher.Constraint("DistanceY", -1, 1, 1, 2, 20.148999))
sketch3.addConstraint(Sketcher.Constraint("DistanceX", 9, 2, -1, 1, 20.148999))
sketch3.addConstraint(Sketcher.Constraint("DistanceY", 23, 3, 0, 2, 48.181599))
sketch3.addConstraint(Sketcher.Constraint("DistanceX", 4, 3, 2, 2, 9.523898))
sketch3.addConstraint(Sketcher.Constraint("DistanceY", 1, 3, 2, 2, 9.806499))
sketch3.addConstraint(Sketcher.Constraint("DistanceY", 3, 2, 2, 2, 0.209601))
sketch3.addConstraint(Sketcher.Constraint("DistanceX", 3, 2, 1, 2, 9.668301))
sketch3.addConstraint(Sketcher.Constraint("DistanceX", 6, 2, 0, 2, 4.094199))
sketch3.addConstraint(Sketcher.Constraint("Distance", 5, 5.758459))
sketch3.addConstraint(Sketcher.Constraint("DistanceX", -1, 1, 0, 2, 28.05159))
sketch3.setExpression("Constraints[55]", "Params.sketch3_radius")
pocket1 = body2.newObject("PartDesign::Pocket", "Pocket")
pocket1.Profile = sketch3
pocket1.setExpression("Length", "Params.pocket1_length")
pocket1.Reversed = True

# Sketch on XZ plane
sketch4 = body2.newObject("Sketcher::SketchObject", "Sketch003")
sketch4.AttachmentSupport = (doc.getObject("XZ_Plane001"), [""])
sketch4.MapMode = "FlatFace"
sketch4.AttachmentOffset = App.Placement(Vector(0, 0, 2.5), App.Rotation())
sketch4.addGeometry(Part.Circle(Vector(0, 0, 0), Vector(0, 0, 1), 7.231072), False)
sketch4.addConstraint(Sketcher.Constraint("Coincident", 0, 3, -1, 1))
sketch4.addConstraint(Sketcher.Constraint("Diameter", 0, 14.462145))
pocket2 = body2.newObject("PartDesign::Pocket", "Pocket001")
pocket2.Profile = sketch4
pocket2.setExpression("Length", "Params.pocket2_length")
pocket2.Reversed = True

doc.recompute()
